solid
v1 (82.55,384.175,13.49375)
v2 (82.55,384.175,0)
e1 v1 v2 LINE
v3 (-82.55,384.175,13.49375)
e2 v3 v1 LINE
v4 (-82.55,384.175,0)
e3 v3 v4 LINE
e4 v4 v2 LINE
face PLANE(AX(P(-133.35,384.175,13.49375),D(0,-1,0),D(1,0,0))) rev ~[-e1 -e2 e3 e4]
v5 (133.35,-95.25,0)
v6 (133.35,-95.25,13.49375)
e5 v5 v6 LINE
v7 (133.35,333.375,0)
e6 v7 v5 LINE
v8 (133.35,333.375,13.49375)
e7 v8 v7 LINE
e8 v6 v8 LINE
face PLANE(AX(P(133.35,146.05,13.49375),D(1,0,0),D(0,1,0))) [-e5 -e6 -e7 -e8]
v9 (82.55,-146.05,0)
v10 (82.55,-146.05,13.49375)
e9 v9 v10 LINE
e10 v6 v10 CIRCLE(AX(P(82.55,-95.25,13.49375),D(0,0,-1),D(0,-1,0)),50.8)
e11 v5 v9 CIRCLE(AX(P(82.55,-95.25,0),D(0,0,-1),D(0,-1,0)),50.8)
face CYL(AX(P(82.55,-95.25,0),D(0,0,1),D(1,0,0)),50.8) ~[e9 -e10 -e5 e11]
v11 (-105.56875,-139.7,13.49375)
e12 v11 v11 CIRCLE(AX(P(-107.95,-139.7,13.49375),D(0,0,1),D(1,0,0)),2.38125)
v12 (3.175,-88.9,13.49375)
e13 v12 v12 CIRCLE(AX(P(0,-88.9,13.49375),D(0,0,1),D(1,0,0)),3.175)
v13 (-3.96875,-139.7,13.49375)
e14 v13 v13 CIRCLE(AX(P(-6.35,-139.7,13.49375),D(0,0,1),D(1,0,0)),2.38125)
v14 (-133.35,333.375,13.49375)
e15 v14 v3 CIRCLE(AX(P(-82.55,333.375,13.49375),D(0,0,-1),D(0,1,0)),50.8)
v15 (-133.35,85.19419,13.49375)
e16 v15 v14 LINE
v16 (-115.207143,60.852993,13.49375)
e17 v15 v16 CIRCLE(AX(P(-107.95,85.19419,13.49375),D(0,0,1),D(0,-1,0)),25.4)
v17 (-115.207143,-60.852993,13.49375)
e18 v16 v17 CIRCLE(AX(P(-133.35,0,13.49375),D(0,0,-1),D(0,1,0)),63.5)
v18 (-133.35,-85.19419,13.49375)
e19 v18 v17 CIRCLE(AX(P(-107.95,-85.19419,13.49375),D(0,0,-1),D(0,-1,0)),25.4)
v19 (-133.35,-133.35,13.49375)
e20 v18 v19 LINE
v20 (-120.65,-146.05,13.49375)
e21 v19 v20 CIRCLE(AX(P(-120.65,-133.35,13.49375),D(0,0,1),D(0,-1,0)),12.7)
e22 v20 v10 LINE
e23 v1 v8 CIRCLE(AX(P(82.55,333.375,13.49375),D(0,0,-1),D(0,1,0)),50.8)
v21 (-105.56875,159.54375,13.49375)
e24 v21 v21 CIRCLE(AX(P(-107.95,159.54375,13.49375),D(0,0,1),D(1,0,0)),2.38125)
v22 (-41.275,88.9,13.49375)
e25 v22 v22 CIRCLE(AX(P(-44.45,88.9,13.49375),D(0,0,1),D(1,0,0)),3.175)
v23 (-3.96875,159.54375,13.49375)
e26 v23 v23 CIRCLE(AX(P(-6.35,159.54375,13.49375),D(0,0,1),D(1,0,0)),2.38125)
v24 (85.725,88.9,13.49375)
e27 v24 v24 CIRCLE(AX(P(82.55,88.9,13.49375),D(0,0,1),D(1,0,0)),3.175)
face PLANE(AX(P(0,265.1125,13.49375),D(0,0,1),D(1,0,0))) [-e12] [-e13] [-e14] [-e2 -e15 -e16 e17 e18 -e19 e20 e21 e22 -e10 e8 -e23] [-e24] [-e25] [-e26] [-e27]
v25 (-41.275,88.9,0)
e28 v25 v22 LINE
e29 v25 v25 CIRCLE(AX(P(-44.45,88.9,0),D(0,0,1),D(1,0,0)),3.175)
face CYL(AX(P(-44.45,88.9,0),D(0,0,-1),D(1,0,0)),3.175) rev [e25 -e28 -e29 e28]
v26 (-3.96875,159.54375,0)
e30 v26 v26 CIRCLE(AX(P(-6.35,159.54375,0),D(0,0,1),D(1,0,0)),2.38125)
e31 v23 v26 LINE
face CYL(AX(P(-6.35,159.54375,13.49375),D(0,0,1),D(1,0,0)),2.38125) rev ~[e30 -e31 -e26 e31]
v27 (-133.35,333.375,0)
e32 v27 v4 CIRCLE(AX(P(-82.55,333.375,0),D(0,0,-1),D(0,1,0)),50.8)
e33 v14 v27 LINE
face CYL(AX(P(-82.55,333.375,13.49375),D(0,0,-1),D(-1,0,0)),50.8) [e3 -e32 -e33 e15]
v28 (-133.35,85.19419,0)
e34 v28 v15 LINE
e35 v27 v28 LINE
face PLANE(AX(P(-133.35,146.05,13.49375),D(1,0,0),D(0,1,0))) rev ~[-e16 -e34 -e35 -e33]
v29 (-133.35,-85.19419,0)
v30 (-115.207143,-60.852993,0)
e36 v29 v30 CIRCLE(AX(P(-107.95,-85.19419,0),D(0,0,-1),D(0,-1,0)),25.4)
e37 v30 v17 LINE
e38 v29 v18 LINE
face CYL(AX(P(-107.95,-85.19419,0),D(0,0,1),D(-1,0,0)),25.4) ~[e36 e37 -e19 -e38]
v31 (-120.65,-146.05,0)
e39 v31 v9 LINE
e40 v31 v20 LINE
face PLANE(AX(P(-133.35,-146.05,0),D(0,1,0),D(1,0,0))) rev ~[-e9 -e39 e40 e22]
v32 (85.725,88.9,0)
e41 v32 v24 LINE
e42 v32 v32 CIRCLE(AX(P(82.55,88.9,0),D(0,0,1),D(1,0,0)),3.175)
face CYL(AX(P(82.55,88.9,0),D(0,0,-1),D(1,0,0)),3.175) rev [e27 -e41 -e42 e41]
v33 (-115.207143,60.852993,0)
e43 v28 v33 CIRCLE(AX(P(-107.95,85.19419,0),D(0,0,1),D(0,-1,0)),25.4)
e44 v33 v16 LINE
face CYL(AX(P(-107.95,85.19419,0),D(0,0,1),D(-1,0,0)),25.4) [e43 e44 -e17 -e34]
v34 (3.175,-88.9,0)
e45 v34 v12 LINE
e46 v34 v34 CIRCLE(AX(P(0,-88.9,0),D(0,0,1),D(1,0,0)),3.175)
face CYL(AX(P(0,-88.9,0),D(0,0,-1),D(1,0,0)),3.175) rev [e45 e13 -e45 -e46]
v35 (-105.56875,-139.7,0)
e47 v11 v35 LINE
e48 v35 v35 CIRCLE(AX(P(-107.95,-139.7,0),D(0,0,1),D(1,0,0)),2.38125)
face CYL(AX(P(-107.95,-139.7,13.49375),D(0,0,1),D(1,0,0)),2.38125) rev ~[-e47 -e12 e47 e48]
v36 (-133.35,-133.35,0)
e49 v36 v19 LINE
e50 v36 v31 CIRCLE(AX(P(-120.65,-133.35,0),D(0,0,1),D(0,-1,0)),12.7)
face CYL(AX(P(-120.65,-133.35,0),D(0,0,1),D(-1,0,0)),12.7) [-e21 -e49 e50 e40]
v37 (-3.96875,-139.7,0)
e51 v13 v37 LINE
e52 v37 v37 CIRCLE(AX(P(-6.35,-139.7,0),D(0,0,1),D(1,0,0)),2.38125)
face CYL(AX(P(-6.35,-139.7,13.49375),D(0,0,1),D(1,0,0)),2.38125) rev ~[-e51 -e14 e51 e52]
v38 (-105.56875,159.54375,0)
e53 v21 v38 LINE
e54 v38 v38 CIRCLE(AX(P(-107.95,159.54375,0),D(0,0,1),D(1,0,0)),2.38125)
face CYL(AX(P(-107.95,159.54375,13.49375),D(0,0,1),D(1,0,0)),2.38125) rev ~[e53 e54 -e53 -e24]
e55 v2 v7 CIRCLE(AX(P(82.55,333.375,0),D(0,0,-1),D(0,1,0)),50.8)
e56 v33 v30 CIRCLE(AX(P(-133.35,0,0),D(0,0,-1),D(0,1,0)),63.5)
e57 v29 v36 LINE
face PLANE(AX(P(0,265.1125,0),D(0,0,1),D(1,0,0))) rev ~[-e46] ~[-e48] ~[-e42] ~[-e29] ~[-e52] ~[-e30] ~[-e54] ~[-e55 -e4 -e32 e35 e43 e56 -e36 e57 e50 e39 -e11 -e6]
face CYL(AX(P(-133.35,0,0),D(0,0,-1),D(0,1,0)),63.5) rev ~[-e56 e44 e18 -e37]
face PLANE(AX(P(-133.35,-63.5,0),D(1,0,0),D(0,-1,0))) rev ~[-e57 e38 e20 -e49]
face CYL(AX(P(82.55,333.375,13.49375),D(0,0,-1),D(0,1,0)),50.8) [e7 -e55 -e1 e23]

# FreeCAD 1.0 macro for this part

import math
import FreeCAD as App
import Part
import Sketcher

V = App.Vector
Q = App.Units.Quantity


def edges_at(feature, points):
    """Names of the edges that pass closest to the given points."""
    edges = feature.Shape.Edges
    near = lambda p: min(range(len(edges)), key=lambda i: edges[i].distToShape(Part.Vertex(*p))[0])
    return sorted({f"Edge{near(p) + 1}" for p in points})


def add_polygon(sketch, points):
    """Adds a closed chain of lines whose ends are joined by coincident constraints."""
    first, n = sketch.GeometryCount, len(points)
    for a, b in zip(points, points[1:] + points[:1]):
        sketch.addGeometry(Part.LineSegment(App.Vector(*a, 0), App.Vector(*b, 0)), False)
    for i in range(n):
        sketch.addConstraint(Sketcher.Constraint("Coincident", first + i, 2, first + (i + 1) % n, 1))

doc = App.newDocument("Part")
body = doc.addObject("PartDesign::Body", "Body")

# Sketch on XY plane
sketch1 = doc.addObject("Sketcher::SketchObject", "Sketch")
body.addObject(sketch1)
sketch1.AttachmentSupport = (doc.XY_Plane, [""])
sketch1.MapMode = "FlatFace"
sketch1.addGeometry(Part.LineSegment(V(133.35, -146.05, 0), V(133.35, 146.05, 0)), False)
sketch1.addGeometry(Part.LineSegment(V(133.35, 146.05, 0), V(-133.35, 146.05, 0)), False)
sketch1.addGeometry(Part.LineSegment(V(-133.35, 146.05, 0), V(-133.35, 63.5, 0)), False)
sketch1.addGeometry(Part.ArcOfCircle(Part.Circle(V(-133.35, 0, 0), V(0, 0, 1), 63.5), math.radians(-90), math.radians(90)), False)
sketch1.addGeometry(Part.LineSegment(V(-133.35, -63.5, 0), V(-133.35, -146.05, 0)), False)
sketch1.addGeometry(Part.LineSegment(V(-133.35, -146.05, 0), V(133.35, -146.05, 0)), False)
sketch1.addGeometry(Part.Circle(V(0, -88.9, 0), V(0, 0, 1), 3.175), False)
sketch1.addGeometry(Part.Circle(V(-44.45, 88.9, 0), V(0, 0, 1), 3.175), False)
sketch1.addGeometry(Part.Circle(V(82.55, 88.9, 0), V(0, 0, 1), 3.175), False)
sketch1.addConstraint(Sketcher.Constraint("Coincident", 0, 2, 1, 1))
sketch1.addConstraint(Sketcher.Constraint("Coincident", 1, 2, 2, 1))
sketch1.addConstraint(Sketcher.Constraint("Coincident", 2, 2, 3, 2))
sketch1.addConstraint(Sketcher.Constraint("Coincident", 3, 1, 4, 1))
sketch1.addConstraint(Sketcher.Constraint("Coincident", 4, 2, 5, 1))
sketch1.addConstraint(Sketcher.Constraint("Coincident", 5, 2, 0, 1))
sketch1.addConstraint(Sketcher.Constraint("Vertical", 0))
sketch1.addConstraint(Sketcher.Constraint("Horizontal", 1))
sketch1.addConstraint(Sketcher.Constraint("Vertical", 2))
sketch1.addConstraint(Sketcher.Constraint("Vertical", 4))
sketch1.addConstraint(Sketcher.Constraint("Horizontal", 5))
sketch1.addConstraint(Sketcher.Constraint("Equal", 6, 7))
sketch1.addConstraint(Sketcher.Constraint("Equal", 7, 8))
sketch1.addConstraint(Sketcher.Constraint("Symmetric", 0, 2, 4, 2, -1, 1))
sketch1.addConstraint(Sketcher.Constraint("Symmetric", 2, 2, 3, 1, -1))
sketch1.addConstraint(Sketcher.Constraint("PointOnObject", 6, 3, -2))
sketch1.addConstraint(Sketcher.Constraint("Horizontal", 7, 3, 8, 3))
sketch1.addConstraint(Sketcher.Constraint("Vertical", 3, 3, 1, 2))
sketch1.addConstraint(Sketcher.Constraint("Radius", 3, Q("2.5 in")))
sketch1.addConstraint(Sketcher.Constraint("Diameter", 6, Q("0.25 in")))
sketch1.addConstraint(Sketcher.Constraint("DistanceX", 1, 2, 1, 1, Q("10.5 in")))
sketch1.addConstraint(Sketcher.Constraint("DistanceY", 0, 1, 0, 2, Q("11.5 in")))
sketch1.addConstraint(Sketcher.Constraint("DistanceY", 6, 3, 7, 3, Q("7 in")))
sketch1.addConstraint(Sketcher.Constraint("DistanceX", 7, 3, 8, 3, Q("5 in")))
sketch1.addConstraint(Sketcher.Constraint("DistanceX", 8, 3, 0, 2, Q("2 in")))
sketch1.addConstraint(Sketcher.Constraint("DistanceY", 2, 2, 7, 3, Q("1 in")))
pad1 = doc.addObject("PartDesign::Pad", "Pad")
body.addObject(pad1)
pad1.Profile = sketch1
pad1.Length = Q("0.53125 in")
doc.recompute()

fillet = doc.addObject("PartDesign::Fillet", "Fillet")
body.addObject(fillet)
fillet.Base = (pad1, edges_at(pad1, [(-133.35, -63.5, 6.747), (-133.35, 63.5, 6.747)]))
fillet.Radius = Q("1 in")

# Sketch on XY plane
sketch2 = doc.addObject("Sketcher::SketchObject", "Sketch001")
body.addObject(sketch2)
sketch2.AttachmentSupport = (doc.XY_Plane, [""])
sketch2.MapMode = "FlatFace"
sketch2.AttachmentOffset = App.Placement(V(0, 0, 0.53125 * 25.4), App.Rotation())
add_polygon(sketch2, [(-133.35, 384.175), (-133.35, 146.05), (133.35, 146.05), (133.35, 384.175)])  # lines 0-3
sketch2.addConstraint(Sketcher.Constraint("Vertical", 0))
sketch2.addConstraint(Sketcher.Constraint("Horizontal", 1))
sketch2.addConstraint(Sketcher.Constraint("Vertical", 2))
sketch2.addConstraint(Sketcher.Constraint("Horizontal", 3))
sketch2.addConstraint(Sketcher.Constraint("DistanceX", 1, 1, 1, 2, Q("10.5 in")))
sketch2.addConstraint(Sketcher.Constraint("DistanceY", 0, 2, 0, 1, Q("9.375 in")))
sketch2.addConstraint(Sketcher.Constraint("DistanceX", 0, 2, -1, 1, Q("5.25 in")))
sketch2.addConstraint(Sketcher.Constraint("DistanceY", -1, 1, 0, 2, Q("5.75 in")))
pad2 = doc.addObject("PartDesign::Pad", "Pad001")
body.addObject(pad2)
pad2.Profile = sketch2
pad2.Length = Q("0.53125 in")
pad2.Reversed = True

# Sketch on XY plane
sketch3 = doc.addObject("Sketcher::SketchObject", "Sketch002")
body.addObject(sketch3)
sketch3.AttachmentSupport = (doc.XY_Plane, [""])
sketch3.MapMode = "FlatFace"
sketch3.AttachmentOffset = App.Placement(V(0, 0, 0.53125 * 25.4), App.Rotation())
sketch3.addGeometry(Part.Circle(V(-107.95, -139.7, 0), V(0, 0, 1), 2.38125), False)
sketch3.addGeometry(Part.Circle(V(-6.35, -139.7, 0), V(0, 0, 1), 2.38125), False)
sketch3.addGeometry(Part.Circle(V(-6.35, 159.54375, 0), V(0, 0, 1), 2.38125), False)
sketch3.addGeometry(Part.Circle(V(-107.95, 159.54375, 0), V(0, 0, 1), 2.38125), False)
sketch3.addConstraint(Sketcher.Constraint("Equal", 0, 1))
sketch3.addConstraint(Sketcher.Constraint("Equal", 1, 2))
sketch3.addConstraint(Sketcher.Constraint("Equal", 2, 3))
sketch3.addConstraint(Sketcher.Constraint("Horizontal", 0, 3, 1, 3))
sketch3.addConstraint(Sketcher.Constraint("Horizontal", 2, 3, 3, 3))
sketch3.addConstraint(Sketcher.Constraint("Vertical", 1, 3, 2, 3))
sketch3.addConstraint(Sketcher.Constraint("Vertical", 0, 3, 3, 3))
sketch3.addConstraint(Sketcher.Constraint("Diameter", 0, Q("0.1875 in")))
sketch3.addConstraint(Sketcher.Constraint("DistanceX", 0, 3, 1, 3, Q("4 in")))
sketch3.addConstraint(Sketcher.Constraint("DistanceY", 0, 3, -1, 1, Q("5.5 in")))
sketch3.addConstraint(Sketcher.Constraint("DistanceX", 0, 3, -1, 1, Q("4.25 in")))
sketch3.addConstraint(Sketcher.Constraint("DistanceY", -1, 1, 2, 3, Q("6.28125 in")))
pocket1 = doc.addObject("PartDesign::Pocket", "Pocket")
body.addObject(pocket1)
pocket1.Profile = sketch3
pocket1.Type = "ThroughAll"
doc.recompute()

fillet2 = doc.addObject("PartDesign::Fillet", "Fillet001")
body.addObject(fillet2)
fillet2.Base = (pocket1, edges_at(pocket1, [(133.35, -146.05, 6.747), (133.35, 384.175, 6.747), (-133.35, 384.175, 6.747)]))
fillet2.Radius = Q("2 in")
doc.recompute()

fillet3 = doc.addObject("PartDesign::Fillet", "Fillet002")
body.addObject(fillet3)
fillet3.Base = (fillet2, edges_at(fillet2, [(-133.35, -146.05, 6.747)]))
fillet3.Radius = Q("0.5 in")

doc.recompute()
